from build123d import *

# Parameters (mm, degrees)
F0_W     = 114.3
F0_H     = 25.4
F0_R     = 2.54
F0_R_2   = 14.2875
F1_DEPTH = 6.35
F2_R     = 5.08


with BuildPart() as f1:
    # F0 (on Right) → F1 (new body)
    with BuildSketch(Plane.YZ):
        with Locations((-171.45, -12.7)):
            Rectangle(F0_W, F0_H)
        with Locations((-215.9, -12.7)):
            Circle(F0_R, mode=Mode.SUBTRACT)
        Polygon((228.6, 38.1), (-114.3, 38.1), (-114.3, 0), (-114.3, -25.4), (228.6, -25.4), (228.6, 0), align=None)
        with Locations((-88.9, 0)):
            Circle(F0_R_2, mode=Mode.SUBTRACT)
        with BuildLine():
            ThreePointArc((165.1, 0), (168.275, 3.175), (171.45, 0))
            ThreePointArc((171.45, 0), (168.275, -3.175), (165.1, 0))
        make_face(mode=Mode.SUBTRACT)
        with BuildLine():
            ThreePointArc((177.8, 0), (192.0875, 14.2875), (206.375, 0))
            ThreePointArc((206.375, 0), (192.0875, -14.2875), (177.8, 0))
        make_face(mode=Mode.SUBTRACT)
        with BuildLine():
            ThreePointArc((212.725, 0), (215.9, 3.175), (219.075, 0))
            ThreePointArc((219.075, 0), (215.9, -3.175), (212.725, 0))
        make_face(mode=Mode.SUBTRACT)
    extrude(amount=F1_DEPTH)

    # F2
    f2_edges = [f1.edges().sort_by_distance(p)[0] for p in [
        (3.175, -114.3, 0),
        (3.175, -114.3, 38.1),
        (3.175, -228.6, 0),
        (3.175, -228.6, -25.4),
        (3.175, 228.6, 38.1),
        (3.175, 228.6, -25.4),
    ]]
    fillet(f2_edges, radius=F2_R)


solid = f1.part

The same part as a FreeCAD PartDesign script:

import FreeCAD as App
import Part
import Sketcher
from FreeCAD import Vector
Q = App.Units.Quantity


def edges_at(feature, points):
    """Names of the edges that pass closest to the given points."""
    edges = feature.Shape.Edges
    near = lambda p: min(range(len(edges)), key=lambda i: edges[i].distToShape(Part.Vertex(*p))[0])
    return sorted({f"Edge{near(p) + 1}" for p in points})

doc = App.newDocument("Part")
body = doc.addObject("PartDesign::Body", "Body")

# Sketch on YZ plane
sketch1 = body.newObject("Sketcher::SketchObject", "Sketch")
sketch1.AttachmentSupport = (doc.getObject("YZ_Plane"), [""])
sketch1.MapMode = "FlatFace"
sketch1.addGeometry([
    Part.LineSegment(Vector(-228.6, 0, 0), Vector(-228.6, -25.4, 0)),  # 0
    Part.LineSegment(Vector(-228.6, -25.4, 0), Vector(228.6, -25.4, 0)),  # 1
    Part.LineSegment(Vector(228.6, -25.4, 0), Vector(228.6, 38.1, 0)),  # 2
    Part.LineSegment(Vector(228.6, 38.1, 0), Vector(-114.3, 38.1, 0)),  # 3
    Part.LineSegment(Vector(-114.3, 38.1, 0), Vector(-114.3, 0, 0)),  # 4
    Part.LineSegment(Vector(-114.3, 0, 0), Vector(-228.6, 0, 0)),  # 5
    Part.Circle(Vector(-215.9, -12.7, 0), Vector(0, 0, 1), 2.5),  # 6
    Part.Circle(Vector(-88.9, 0, 0), Vector(0, 0, 1), 14.3),  # 7
    Part.Circle(Vector(168.3, 0, 0), Vector(0, 0, 1), 3.2),  # 8
    Part.Circle(Vector(192.1, 0, 0), Vector(0, 0, 1), 14.3),  # 9
    Part.Circle(Vector(215.9, 0, 0), Vector(0, 0, 1), 3.2),  # 10
], False)
sketch1.addConstraint([
    Sketcher.Constraint("Coincident", 0, 2, 1, 1),
    Sketcher.Constraint("Coincident", 1, 2, 2, 1),
    Sketcher.Constraint("Coincident", 2, 2, 3, 1),
    Sketcher.Constraint("Coincident", 3, 2, 4, 1),
    Sketcher.Constraint("Coincident", 4, 2, 5, 1),
    Sketcher.Constraint("Coincident", 5, 2, 0, 1),
    Sketcher.Constraint("Vertical", 0),
    Sketcher.Constraint("Horizontal", 1),
    Sketcher.Constraint("Vertical", 2),
    Sketcher.Constraint("Horizontal", 3),
    Sketcher.Constraint("Vertical", 4),
    Sketcher.Constraint("Horizontal", 5),
    Sketcher.Constraint("Equal", 7, 9),
    Sketcher.Constraint("Equal", 8, 10),
    Sketcher.Constraint("PointOnObject", 7, 3, -1),
    Sketcher.Constraint("PointOnObject", 8, 3, -1),
    Sketcher.Constraint("PointOnObject", 9, 3, -1),
    Sketcher.Constraint("PointOnObject", 10, 3, -1),
    Sketcher.Constraint("PointOnObject", 4, 2, -1),
    Sketcher.Constraint("Diameter", 6, Q("0.2 in")),
    Sketcher.Constraint("Diameter", 8, Q("0.25 in")),
    Sketcher.Constraint("DistanceX", 1, 1, 1, 2, Q("18 in")),
    Sketcher.Constraint("DistanceY", 0, 2, 0, 1, Q("1 in")),
    Sketcher.Constraint("Diameter", 7, Q("1.125 in")),
    Sketcher.Constraint("DistanceX", 3, 2, 3, 1, Q("13.5 in")),
    Sketcher.Constraint("DistanceY", 2, 1, 2, 2, Q("2.5 in")),
    Sketcher.Constraint("DistanceX", 0, 2, -1, 1, Q("9 in")),
    Sketcher.Constraint("DistanceX", 6, 3, 7, 3, Q("5 in")),
    Sketcher.Constraint("DistanceX", 7, 3, 10, 3, Q("12 in")),
    Sketcher.Constraint("DistanceX", 3, 2, 7, 3, Q("1 in")),
    Sketcher.Constraint("DistanceY", 6, 3, 3, 2, Q("2 in")),
    Sketcher.Constraint("DistanceX", -1, 1, 8, 3, Q("6.625 in")),
    Sketcher.Constraint("DistanceX", -1, 1, 9, 3, Q("7.5625 in")),
])
pad1 = body.newObject("PartDesign::Pad", "Pad")
pad1.Profile = sketch1
pad1.Length = Q("0.25 in")
doc.recompute()

fillet = body.newObject("PartDesign::Fillet", "Fillet")
fillet.Base = (pad1, edges_at(pad1, [
    (3.175, -114.3, 0),
    (3.175, -114.3, 38.1),
    (3.175, -228.6, 0),
    (3.175, -228.6, -25.4),
    (3.175, 228.6, 38.1),
    (3.175, 228.6, -25.4),
]))
fillet.Radius = Q("0.2 in")

doc.recompute()
